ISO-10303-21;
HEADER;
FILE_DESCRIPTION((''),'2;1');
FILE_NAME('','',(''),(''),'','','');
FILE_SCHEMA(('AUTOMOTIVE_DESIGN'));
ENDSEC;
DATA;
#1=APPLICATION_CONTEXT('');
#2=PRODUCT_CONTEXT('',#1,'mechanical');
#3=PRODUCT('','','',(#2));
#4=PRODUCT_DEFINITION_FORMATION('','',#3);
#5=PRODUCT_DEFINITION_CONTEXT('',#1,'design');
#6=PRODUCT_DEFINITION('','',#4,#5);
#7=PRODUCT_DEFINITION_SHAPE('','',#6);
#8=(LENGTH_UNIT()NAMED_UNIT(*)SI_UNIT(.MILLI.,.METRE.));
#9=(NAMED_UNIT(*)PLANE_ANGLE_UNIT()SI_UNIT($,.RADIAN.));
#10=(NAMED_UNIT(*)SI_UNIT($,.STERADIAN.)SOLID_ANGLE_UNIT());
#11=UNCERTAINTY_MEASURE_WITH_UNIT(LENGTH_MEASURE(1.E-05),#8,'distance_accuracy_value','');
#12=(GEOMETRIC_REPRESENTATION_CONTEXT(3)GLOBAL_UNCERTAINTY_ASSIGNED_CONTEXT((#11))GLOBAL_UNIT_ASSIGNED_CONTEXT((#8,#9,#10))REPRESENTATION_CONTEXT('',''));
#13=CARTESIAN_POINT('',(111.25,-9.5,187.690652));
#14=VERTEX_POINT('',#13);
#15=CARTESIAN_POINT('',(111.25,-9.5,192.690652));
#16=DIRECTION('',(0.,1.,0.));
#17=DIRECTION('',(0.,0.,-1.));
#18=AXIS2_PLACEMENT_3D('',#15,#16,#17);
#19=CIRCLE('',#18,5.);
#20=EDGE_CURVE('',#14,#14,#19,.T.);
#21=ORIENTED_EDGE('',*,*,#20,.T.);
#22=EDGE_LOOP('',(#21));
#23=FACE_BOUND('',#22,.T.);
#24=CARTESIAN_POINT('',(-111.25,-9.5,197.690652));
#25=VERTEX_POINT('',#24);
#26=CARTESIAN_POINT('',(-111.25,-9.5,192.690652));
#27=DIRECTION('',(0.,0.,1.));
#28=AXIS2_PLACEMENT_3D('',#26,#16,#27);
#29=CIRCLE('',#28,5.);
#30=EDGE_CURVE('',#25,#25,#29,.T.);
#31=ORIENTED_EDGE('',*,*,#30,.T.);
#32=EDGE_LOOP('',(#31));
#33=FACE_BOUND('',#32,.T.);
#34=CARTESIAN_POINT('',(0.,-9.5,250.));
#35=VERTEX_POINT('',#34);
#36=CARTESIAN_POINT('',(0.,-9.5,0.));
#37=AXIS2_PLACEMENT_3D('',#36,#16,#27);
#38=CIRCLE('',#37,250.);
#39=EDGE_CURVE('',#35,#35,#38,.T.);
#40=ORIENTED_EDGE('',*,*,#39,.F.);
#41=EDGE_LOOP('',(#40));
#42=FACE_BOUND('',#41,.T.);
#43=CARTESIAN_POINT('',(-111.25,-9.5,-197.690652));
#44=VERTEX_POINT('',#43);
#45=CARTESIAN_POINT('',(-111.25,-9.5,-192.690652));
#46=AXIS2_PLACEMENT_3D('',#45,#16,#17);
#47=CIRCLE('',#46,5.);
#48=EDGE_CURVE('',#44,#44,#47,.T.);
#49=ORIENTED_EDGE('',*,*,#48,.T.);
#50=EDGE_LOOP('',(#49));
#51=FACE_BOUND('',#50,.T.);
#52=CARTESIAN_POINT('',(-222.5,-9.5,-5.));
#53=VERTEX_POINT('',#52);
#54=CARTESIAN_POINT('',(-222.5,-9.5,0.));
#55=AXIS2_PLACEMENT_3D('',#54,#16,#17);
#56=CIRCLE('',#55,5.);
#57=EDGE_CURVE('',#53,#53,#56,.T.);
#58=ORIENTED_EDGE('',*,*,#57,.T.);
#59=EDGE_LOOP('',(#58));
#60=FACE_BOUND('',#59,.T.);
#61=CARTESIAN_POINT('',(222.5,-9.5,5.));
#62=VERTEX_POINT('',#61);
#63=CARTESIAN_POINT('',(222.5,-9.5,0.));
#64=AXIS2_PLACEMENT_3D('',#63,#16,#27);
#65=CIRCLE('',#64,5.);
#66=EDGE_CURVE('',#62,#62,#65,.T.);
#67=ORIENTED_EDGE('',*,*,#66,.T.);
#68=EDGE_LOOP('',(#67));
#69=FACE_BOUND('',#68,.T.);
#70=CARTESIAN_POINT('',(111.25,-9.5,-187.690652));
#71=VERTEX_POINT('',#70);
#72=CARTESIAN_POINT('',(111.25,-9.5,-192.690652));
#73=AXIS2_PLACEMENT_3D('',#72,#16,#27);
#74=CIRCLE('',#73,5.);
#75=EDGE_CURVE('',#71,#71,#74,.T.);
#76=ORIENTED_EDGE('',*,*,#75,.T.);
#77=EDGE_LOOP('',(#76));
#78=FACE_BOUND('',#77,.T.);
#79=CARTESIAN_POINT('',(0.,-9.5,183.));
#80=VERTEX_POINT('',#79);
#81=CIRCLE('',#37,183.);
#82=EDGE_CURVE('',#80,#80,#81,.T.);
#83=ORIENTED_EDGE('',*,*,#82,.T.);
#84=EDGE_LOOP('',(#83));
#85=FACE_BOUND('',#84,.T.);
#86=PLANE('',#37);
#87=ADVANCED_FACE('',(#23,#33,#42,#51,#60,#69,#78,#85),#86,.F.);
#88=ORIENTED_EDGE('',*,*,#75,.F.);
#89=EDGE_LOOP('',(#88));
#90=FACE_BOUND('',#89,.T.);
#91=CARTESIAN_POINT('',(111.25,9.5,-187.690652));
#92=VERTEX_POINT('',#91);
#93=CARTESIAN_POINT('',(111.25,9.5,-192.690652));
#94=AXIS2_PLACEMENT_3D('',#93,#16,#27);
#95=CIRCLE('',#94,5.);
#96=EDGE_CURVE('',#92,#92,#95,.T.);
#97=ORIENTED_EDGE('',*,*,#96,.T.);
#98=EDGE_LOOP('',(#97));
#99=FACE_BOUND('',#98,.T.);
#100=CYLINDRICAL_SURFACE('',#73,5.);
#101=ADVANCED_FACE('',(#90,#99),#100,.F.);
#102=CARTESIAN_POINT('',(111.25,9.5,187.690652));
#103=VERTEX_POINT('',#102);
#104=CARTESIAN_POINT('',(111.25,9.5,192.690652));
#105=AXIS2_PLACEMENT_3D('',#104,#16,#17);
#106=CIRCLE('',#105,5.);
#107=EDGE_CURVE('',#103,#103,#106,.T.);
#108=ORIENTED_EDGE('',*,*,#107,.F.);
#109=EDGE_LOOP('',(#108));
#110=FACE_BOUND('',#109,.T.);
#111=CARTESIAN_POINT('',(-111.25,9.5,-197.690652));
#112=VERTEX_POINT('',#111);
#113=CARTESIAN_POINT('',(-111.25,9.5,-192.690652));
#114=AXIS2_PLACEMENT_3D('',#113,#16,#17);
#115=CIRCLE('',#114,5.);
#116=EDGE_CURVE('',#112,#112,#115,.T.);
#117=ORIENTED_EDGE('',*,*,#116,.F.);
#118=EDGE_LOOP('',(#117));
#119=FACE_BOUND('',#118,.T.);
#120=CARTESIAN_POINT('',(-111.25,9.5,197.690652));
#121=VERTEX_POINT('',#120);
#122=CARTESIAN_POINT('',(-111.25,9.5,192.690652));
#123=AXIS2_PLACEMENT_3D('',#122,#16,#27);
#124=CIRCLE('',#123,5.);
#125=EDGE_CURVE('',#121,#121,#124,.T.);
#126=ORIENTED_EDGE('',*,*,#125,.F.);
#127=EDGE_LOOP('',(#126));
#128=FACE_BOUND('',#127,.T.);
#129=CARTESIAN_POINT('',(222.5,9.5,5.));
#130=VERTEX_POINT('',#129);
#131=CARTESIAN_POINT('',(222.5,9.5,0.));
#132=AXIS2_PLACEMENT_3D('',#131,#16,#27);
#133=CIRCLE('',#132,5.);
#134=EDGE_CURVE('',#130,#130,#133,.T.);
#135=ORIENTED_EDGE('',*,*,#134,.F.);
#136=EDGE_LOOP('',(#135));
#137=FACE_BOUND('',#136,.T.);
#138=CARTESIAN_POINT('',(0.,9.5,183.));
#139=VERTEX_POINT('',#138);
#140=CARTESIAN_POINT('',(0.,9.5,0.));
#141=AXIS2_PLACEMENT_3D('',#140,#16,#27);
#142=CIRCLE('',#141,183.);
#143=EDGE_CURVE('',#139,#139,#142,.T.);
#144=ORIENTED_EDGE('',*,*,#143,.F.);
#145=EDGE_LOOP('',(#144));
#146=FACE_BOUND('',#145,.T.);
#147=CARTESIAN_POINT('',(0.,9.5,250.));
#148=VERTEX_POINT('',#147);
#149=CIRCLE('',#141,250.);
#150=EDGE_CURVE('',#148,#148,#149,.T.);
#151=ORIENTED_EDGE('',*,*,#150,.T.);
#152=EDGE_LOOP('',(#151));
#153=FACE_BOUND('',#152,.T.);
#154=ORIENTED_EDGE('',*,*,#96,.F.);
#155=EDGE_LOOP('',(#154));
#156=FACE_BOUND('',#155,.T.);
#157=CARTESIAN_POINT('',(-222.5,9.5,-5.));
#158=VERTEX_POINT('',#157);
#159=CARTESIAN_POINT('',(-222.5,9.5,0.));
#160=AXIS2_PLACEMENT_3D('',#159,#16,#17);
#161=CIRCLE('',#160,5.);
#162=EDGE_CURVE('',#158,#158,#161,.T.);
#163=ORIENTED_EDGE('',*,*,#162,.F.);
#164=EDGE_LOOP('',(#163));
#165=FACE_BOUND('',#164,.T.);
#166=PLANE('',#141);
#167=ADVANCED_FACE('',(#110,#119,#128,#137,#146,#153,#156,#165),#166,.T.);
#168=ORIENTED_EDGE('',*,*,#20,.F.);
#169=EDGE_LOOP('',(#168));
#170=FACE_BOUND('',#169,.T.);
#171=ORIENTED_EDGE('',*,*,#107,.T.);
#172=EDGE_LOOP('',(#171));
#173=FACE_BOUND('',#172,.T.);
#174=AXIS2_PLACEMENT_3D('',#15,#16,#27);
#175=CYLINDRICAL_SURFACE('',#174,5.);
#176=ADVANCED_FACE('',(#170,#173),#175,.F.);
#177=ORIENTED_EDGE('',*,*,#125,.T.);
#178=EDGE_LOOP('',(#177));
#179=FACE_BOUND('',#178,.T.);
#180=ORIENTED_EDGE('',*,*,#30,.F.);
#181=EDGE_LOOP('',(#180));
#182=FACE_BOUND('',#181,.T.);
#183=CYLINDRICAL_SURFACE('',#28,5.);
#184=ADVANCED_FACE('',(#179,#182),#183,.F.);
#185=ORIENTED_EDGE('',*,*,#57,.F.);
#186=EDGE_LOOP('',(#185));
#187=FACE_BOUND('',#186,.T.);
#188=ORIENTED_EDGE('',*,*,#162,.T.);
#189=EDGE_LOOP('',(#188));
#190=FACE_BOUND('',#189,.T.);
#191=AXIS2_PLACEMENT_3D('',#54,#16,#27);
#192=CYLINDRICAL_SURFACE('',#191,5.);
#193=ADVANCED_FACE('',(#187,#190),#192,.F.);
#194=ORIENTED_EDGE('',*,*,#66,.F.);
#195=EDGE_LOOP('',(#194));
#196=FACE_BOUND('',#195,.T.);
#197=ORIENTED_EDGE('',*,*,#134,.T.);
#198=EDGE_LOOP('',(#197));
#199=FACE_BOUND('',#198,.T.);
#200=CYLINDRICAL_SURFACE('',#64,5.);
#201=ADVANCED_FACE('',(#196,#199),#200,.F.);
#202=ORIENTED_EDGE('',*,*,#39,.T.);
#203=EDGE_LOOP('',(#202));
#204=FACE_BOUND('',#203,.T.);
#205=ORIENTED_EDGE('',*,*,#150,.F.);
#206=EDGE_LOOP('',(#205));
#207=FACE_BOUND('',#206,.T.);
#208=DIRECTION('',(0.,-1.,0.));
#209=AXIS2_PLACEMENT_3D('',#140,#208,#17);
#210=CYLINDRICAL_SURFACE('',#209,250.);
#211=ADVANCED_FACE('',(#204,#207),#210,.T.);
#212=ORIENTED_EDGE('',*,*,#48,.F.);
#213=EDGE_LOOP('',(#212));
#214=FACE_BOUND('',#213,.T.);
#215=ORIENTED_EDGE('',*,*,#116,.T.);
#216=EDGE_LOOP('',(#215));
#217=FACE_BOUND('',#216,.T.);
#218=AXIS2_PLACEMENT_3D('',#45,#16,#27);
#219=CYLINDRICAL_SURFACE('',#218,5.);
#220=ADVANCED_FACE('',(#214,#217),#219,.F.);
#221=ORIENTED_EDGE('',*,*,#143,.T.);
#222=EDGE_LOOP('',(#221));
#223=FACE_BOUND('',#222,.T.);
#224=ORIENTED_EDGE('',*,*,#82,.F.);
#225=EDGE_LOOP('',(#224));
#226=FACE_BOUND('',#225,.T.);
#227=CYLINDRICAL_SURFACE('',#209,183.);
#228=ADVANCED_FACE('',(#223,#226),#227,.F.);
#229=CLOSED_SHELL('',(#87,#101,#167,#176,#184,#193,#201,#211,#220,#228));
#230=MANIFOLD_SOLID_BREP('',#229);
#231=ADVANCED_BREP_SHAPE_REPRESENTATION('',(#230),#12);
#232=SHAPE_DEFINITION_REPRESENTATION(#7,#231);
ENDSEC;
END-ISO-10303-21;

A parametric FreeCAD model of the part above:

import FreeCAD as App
import Part
import Sketcher
from FreeCAD import Vector

doc = App.newDocument("Part")
body = doc.addObject("PartDesign::Body", "Body")

sketch1 = doc.addObject("Sketcher::SketchObject", "Sketch")
body.addObject(sketch1)
sketch1.AttachmentSupport = (doc.XZ_Plane, [""])
sketch1.MapMode = "FlatFace"
sketch1.addGeometry(Part.Circle(Vector(0, 0, 0), Vector(0, 0, 1), 250), False)
sketch1.addGeometry(Part.Circle(Vector(0, 0, 0), Vector(0, 0, 1), 183), False)
sketch1.addConstraint(Sketcher.Constraint("Coincident", 0, 3, -1, 1))
sketch1.addConstraint(Sketcher.Constraint("Coincident", 1, 3, -1, 1))
sketch1.addConstraint(Sketcher.Constraint("Diameter", 0, 500.0))
sketch1.addConstraint(Sketcher.Constraint("Diameter", 1, 366.0))
pad1 = doc.addObject("PartDesign::Pad", "Pad")
body.addObject(pad1)
pad1.Profile = sketch1
pad1.Length = 19
pad1.Midplane = True

sketch2 = doc.addObject("Sketcher::SketchObject", "Sketch001")
body.addObject(sketch2)
sketch2.AttachmentSupport = (doc.XZ_Plane, [""])
sketch2.MapMode = "FlatFace"
sketch2.AttachmentOffset = App.Placement(Vector(0, 0, -9.5), App.Rotation())
sketch2.addGeometry(Part.Circle(Vector(111.25, -192.690652, 0), Vector(0, 0, 1), 5), False)
sketch2.addGeometry(Part.Circle(Vector(222.5, 0, 0), Vector(0, 0, 1), 5), False)
sketch2.addGeometry(Part.Circle(Vector(-111.25, -192.690652, 0), Vector(0, 0, 1), 5), False)
sketch2.addGeometry(Part.Circle(Vector(-222.5, 0, 0), Vector(0, 0, 1), 5), False)
sketch2.addGeometry(Part.Circle(Vector(111.25, 192.690652, 0), Vector(0, 0, 1), 5), False)
sketch2.addGeometry(Part.Circle(Vector(-111.25, 192.690652, 0), Vector(0, 0, 1), 5), False)
sketch2.addConstraint(Sketcher.Constraint("Equal", 0, 1))
sketch2.addConstraint(Sketcher.Constraint("Equal", 1, 2))
sketch2.addConstraint(Sketcher.Constraint("Equal", 2, 3))
sketch2.addConstraint(Sketcher.Constraint("Equal", 3, 4))
sketch2.addConstraint(Sketcher.Constraint("Equal", 4, 5))
sketch2.addConstraint(Sketcher.Constraint("Symmetric", 1, 3, 3, 3, -1, 1))
sketch2.addConstraint(Sketcher.Constraint("Symmetric", 2, 3, 4, 3, -1, 1))
sketch2.addConstraint(Sketcher.Constraint("Symmetric", 0, 3, 5, 3, -1, 1))
sketch2.addConstraint(Sketcher.Constraint("Symmetric", 0, 3, 2, 3, -2))
sketch2.addConstraint(Sketcher.Constraint("PointOnObject", 1, 3, -1))
sketch2.addConstraint(Sketcher.Constraint("Diameter", 0, 10.0))
sketch2.addConstraint(Sketcher.Constraint("DistanceX", 3, 3, 1, 3, 445.0))
sketch2.addConstraint(Sketcher.Constraint("DistanceX", 2, 3, 0, 3, 222.5))
sketch2.addConstraint(Sketcher.Constraint("DistanceY", 0, 3, -1, 1, 192.690652))
pocket1 = doc.addObject("PartDesign::Pocket", "Pocket")
body.addObject(pocket1)
pocket1.Profile = sketch2
pocket1.Type = "ThroughAll"
pocket1.Reversed = True

doc.recompute()
